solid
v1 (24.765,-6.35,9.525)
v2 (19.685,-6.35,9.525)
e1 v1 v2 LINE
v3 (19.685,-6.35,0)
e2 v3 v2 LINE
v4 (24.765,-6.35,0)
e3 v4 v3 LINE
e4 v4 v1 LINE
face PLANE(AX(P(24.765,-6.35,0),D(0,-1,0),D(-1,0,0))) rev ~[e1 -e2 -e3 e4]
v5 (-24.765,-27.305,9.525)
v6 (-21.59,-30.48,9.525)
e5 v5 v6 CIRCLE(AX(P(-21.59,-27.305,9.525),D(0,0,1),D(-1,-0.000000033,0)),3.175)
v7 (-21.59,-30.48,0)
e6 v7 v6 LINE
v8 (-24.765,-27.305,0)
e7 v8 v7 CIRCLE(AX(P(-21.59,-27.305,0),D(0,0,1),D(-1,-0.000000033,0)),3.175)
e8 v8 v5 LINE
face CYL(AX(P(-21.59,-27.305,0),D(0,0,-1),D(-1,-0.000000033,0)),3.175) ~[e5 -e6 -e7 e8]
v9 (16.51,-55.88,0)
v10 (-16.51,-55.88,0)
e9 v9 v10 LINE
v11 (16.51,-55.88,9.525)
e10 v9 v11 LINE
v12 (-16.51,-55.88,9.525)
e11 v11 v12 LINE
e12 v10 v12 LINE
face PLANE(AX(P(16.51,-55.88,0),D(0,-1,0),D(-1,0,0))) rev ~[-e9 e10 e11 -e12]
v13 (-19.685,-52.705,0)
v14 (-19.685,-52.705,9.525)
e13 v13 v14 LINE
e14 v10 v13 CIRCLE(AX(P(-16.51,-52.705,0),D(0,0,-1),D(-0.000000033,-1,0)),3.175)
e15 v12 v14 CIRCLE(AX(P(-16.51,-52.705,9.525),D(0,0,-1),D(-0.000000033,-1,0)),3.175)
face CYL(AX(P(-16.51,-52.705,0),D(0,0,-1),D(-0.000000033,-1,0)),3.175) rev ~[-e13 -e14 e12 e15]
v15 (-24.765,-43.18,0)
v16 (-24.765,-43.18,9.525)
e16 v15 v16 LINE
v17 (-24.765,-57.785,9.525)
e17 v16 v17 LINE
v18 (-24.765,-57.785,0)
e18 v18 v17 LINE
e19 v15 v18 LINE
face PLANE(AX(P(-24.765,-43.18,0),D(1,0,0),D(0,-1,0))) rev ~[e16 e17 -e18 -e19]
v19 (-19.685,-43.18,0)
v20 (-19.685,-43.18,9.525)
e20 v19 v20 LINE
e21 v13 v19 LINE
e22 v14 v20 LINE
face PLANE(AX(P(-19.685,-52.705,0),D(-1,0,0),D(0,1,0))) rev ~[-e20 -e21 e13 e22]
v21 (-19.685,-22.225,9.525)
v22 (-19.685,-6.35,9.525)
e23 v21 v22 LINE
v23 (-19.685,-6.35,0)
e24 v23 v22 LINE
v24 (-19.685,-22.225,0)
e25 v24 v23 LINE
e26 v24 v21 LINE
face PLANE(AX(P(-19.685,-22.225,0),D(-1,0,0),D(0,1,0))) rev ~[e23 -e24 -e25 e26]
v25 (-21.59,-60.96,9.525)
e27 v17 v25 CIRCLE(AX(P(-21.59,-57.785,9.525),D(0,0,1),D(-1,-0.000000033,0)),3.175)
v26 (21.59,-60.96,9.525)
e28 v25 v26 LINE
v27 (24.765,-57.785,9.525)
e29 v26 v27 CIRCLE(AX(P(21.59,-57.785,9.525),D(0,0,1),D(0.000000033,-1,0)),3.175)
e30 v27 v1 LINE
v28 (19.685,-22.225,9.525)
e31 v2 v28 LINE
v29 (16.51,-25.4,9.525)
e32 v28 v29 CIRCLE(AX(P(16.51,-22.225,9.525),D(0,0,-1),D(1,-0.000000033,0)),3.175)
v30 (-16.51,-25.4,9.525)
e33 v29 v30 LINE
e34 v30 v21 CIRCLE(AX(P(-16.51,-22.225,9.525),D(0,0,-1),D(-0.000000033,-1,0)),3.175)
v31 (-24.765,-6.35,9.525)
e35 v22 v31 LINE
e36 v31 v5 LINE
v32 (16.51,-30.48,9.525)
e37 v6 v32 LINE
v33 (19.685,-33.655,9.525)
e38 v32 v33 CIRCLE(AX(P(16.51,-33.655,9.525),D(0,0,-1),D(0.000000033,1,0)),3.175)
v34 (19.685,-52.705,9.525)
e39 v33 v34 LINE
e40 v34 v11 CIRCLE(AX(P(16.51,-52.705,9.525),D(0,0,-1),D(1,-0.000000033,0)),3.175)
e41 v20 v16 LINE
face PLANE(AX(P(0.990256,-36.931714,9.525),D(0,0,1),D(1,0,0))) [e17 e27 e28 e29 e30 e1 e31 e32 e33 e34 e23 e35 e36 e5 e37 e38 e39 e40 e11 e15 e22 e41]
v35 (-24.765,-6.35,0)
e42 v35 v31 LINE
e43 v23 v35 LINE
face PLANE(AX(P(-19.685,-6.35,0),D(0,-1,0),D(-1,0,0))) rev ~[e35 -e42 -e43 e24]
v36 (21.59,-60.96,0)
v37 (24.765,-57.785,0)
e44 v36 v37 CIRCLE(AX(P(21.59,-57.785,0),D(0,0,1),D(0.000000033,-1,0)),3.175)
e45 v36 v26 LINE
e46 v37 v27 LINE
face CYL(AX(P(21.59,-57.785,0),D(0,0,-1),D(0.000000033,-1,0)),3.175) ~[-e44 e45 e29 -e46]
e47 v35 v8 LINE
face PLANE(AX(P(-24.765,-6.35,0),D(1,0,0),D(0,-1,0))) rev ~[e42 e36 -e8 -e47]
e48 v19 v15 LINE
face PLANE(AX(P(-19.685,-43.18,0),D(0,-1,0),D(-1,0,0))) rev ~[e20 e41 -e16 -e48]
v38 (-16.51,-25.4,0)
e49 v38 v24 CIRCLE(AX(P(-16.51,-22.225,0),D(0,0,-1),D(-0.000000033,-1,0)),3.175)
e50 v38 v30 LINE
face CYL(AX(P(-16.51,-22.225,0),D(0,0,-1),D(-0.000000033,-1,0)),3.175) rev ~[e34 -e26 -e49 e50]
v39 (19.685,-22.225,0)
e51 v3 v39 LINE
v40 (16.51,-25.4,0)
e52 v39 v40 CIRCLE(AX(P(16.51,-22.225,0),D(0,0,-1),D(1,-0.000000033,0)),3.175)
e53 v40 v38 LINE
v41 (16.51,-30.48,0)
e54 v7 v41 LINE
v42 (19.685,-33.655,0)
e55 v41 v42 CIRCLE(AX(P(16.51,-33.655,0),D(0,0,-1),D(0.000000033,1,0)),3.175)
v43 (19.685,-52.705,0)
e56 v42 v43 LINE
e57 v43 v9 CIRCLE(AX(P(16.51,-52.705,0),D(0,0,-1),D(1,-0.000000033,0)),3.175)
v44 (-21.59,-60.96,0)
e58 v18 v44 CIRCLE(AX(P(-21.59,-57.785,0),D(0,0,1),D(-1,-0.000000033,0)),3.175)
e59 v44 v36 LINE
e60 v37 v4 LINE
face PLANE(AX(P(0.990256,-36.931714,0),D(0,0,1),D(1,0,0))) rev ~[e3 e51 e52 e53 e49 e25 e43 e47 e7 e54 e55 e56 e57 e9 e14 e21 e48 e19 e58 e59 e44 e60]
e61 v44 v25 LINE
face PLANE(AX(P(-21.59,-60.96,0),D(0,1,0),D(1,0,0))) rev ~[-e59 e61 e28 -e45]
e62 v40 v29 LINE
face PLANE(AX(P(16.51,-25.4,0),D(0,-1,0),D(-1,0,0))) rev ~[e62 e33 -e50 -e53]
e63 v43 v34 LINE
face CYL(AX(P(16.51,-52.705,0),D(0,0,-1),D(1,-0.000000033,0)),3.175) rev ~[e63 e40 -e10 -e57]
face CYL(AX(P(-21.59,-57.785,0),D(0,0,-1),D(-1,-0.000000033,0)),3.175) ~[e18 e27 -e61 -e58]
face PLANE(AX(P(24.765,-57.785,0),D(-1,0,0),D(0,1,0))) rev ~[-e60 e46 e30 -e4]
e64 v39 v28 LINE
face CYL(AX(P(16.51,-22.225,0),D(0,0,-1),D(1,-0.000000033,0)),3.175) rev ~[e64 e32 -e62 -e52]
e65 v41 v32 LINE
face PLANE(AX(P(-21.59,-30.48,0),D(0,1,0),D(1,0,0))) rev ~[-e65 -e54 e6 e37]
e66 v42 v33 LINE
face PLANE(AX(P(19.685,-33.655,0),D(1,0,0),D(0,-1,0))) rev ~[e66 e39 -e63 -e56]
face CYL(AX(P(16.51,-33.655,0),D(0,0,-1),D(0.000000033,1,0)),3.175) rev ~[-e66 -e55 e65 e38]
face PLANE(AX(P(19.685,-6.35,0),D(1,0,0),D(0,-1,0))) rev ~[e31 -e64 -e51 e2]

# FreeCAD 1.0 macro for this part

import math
import FreeCAD as App
import Part
import Sketcher
Q = App.Units.Quantity

doc = App.newDocument("Part")
body = doc.addObject("PartDesign::Body", "Body")

# Sketch on XY plane
sketch1 = doc.addObject("Sketcher::SketchObject", "Sketch")
body.addObject(sketch1)
sketch1.AttachmentSupport = (doc.XY_Plane, [""])
sketch1.MapMode = "FlatFace"
sketch1.addGeometry([
    Part.ArcOfCircle(Part.Circle(App.Vector(16.51, -22.225, 0), App.Vector(0, 0, 1), 3.175), math.radians(-89.999998), math.radians(-0.000002)),  # 0
    Part.LineSegment(App.Vector(16.51, -25.4, 0), App.Vector(-16.51, -25.4, 0)),  # 1
    Part.ArcOfCircle(Part.Circle(App.Vector(-16.51, -22.225, 0), App.Vector(0, 0, 1), 3.175), math.radians(-179.999998), math.radians(-90.000002)),  # 2
    Part.LineSegment(App.Vector(-19.685, -22.225, 0), App.Vector(-19.685, -6.35, 0)),  # 3
    Part.LineSegment(App.Vector(-19.685, -6.35, 0), App.Vector(-24.765, -6.35, 0)),  # 4
    Part.LineSegment(App.Vector(-24.765, -6.35, 0), App.Vector(-24.765, -27.305, 0)),  # 5
    Part.ArcOfCircle(Part.Circle(App.Vector(-21.59, -27.305, 0), App.Vector(0, 0, 1), 3.175), math.radians(-179.999998), math.radians(-90.000002)),  # 6
    Part.LineSegment(App.Vector(-21.59, -30.48, 0), App.Vector(16.51, -30.48, 0)),  # 7
    Part.ArcOfCircle(Part.Circle(App.Vector(16.51, -33.655, 0), App.Vector(0, 0, 1), 3.175), math.radians(0.000002), math.radians(89.999998)),  # 8
    Part.LineSegment(App.Vector(19.685, -33.655, 0), App.Vector(19.685, -52.705, 0)),  # 9
    Part.ArcOfCircle(Part.Circle(App.Vector(16.51, -52.705, 0), App.Vector(0, 0, 1), 3.175), math.radians(-89.999998), math.radians(-0.000002)),  # 10
    Part.LineSegment(App.Vector(16.51, -55.88, 0), App.Vector(-16.51, -55.88, 0)),  # 11
    Part.ArcOfCircle(Part.Circle(App.Vector(-16.51, -52.705, 0), App.Vector(0, 0, 1), 3.175), math.radians(-179.999998), math.radians(-90.000002)),  # 12
    Part.LineSegment(App.Vector(-19.685, -52.705, 0), App.Vector(-19.685, -43.18, 0)),  # 13
    Part.LineSegment(App.Vector(-19.685, -43.18, 0), App.Vector(-24.765, -43.18, 0)),  # 14
    Part.LineSegment(App.Vector(-24.765, -43.18, 0), App.Vector(-24.765, -57.785, 0)),  # 15
    Part.ArcOfCircle(Part.Circle(App.Vector(-21.59, -57.785, 0), App.Vector(0, 0, 1), 3.175), math.radians(-179.999998), math.radians(-90.000002)),  # 16
    Part.LineSegment(App.Vector(-21.59, -60.96, 0), App.Vector(21.59, -60.96, 0)),  # 17
    Part.ArcOfCircle(Part.Circle(App.Vector(21.59, -57.785, 0), App.Vector(0, 0, 1), 3.175), math.radians(-89.999998), math.radians(-0.000002)),  # 18
    Part.LineSegment(App.Vector(24.765, -57.785, 0), App.Vector(24.765, -6.35, 0)),  # 19
    Part.LineSegment(App.Vector(24.765, -6.35, 0), App.Vector(19.685, -6.35, 0)),  # 20
    Part.LineSegment(App.Vector(19.685, -6.35, 0), App.Vector(19.685, -22.225, 0)),  # 21
], False)
sketch1.addConstraint([
    Sketcher.Constraint("Tangent", 0, 1, 1, 1),
    Sketcher.Constraint("Tangent", 1, 2, 2, 2),
    Sketcher.Constraint("Tangent", 2, 1, 3, 1),
    Sketcher.Constraint("Coincident", 3, 2, 4, 1),
    Sketcher.Constraint("Coincident", 4, 2, 5, 1),
    Sketcher.Constraint("Tangent", 5, 2, 6, 1),
    Sketcher.Constraint("Tangent", 6, 2, 7, 1),
    Sketcher.Constraint("Tangent", 7, 2, 8, 2),
    Sketcher.Constraint("Tangent", 8, 1, 9, 1),
    Sketcher.Constraint("Tangent", 9, 2, 10, 2),
    Sketcher.Constraint("Tangent", 10, 1, 11, 1),
    Sketcher.Constraint("Tangent", 11, 2, 12, 2),
    Sketcher.Constraint("Tangent", 12, 1, 13, 1),
    Sketcher.Constraint("Coincident", 13, 2, 14, 1),
    Sketcher.Constraint("Coincident", 14, 2, 15, 1),
    Sketcher.Constraint("Tangent", 15, 2, 16, 1),
    Sketcher.Constraint("Tangent", 16, 2, 17, 1),
    Sketcher.Constraint("Tangent", 17, 2, 18, 1),
    Sketcher.Constraint("Tangent", 18, 2, 19, 1),
    Sketcher.Constraint("Coincident", 19, 2, 20, 1),
    Sketcher.Constraint("Coincident", 20, 2, 21, 1),
    Sketcher.Constraint("Tangent", 21, 2, 0, 2),
    Sketcher.Constraint("Horizontal", 1),
    Sketcher.Constraint("Vertical", 3),
    Sketcher.Constraint("Horizontal", 4),
    Sketcher.Constraint("Vertical", 5),
    Sketcher.Constraint("Horizontal", 7),
    Sketcher.Constraint("Vertical", 9),
    Sketcher.Constraint("Horizontal", 11),
    Sketcher.Constraint("Vertical", 13),
    Sketcher.Constraint("Horizontal", 14),
    Sketcher.Constraint("Vertical", 15),
    Sketcher.Constraint("Horizontal", 17),
    Sketcher.Constraint("Vertical", 19),
    Sketcher.Constraint("Horizontal", 20),
    Sketcher.Constraint("Vertical", 21),
    Sketcher.Constraint("Equal", 0, 2),
    Sketcher.Constraint("Equal", 2, 6),
    Sketcher.Constraint("Equal", 6, 8),
    Sketcher.Constraint("Equal", 8, 10),
    Sketcher.Constraint("Equal", 10, 12),
    Sketcher.Constraint("Equal", 12, 16),
    Sketcher.Constraint("Equal", 16, 18),
    Sketcher.Constraint("Symmetric", 4, 2, 19, 2, -2),
    Sketcher.Constraint("Vertical", 0, 3, 8, 3),
    Sketcher.Constraint("Vertical", 2, 3, 12, 3),
    Sketcher.Constraint("Vertical", 6, 3, 16, 3),
    Sketcher.Constraint("Equal", 14, 20),
    Sketcher.Constraint("DistanceX", 1, 2, 1, 1, Q("1.3 in")),
    Sketcher.Constraint("DistanceX", 4, 2, 4, 1, Q("0.2 in")),
    Sketcher.Constraint("DistanceY", 0, 1, -1, 1, Q("1 in")),
    Sketcher.Constraint("Radius", 0, Q("0.125 in")),
    Sketcher.Constraint("DistanceY", 10, 3, 6, 3, Q("1 in")),
    Sketcher.Constraint("DistanceY", 6, 2, -1, 1, Q("1.2 in")),
    Sketcher.Constraint("DistanceY", 13, 2, -1, 1, Q("1.7 in")),
    Sketcher.Constraint("DistanceY", 16, 2, -1, 1, Q("2.4 in")),
    Sketcher.Constraint("DistanceY", 3, 1, 3, 2, Q("0.625 in")),
])
pad1 = doc.addObject("PartDesign::Pad", "Pad")
body.addObject(pad1)
pad1.Profile = sketch1
pad1.Length = Q("0.375 in")

doc.recompute()
